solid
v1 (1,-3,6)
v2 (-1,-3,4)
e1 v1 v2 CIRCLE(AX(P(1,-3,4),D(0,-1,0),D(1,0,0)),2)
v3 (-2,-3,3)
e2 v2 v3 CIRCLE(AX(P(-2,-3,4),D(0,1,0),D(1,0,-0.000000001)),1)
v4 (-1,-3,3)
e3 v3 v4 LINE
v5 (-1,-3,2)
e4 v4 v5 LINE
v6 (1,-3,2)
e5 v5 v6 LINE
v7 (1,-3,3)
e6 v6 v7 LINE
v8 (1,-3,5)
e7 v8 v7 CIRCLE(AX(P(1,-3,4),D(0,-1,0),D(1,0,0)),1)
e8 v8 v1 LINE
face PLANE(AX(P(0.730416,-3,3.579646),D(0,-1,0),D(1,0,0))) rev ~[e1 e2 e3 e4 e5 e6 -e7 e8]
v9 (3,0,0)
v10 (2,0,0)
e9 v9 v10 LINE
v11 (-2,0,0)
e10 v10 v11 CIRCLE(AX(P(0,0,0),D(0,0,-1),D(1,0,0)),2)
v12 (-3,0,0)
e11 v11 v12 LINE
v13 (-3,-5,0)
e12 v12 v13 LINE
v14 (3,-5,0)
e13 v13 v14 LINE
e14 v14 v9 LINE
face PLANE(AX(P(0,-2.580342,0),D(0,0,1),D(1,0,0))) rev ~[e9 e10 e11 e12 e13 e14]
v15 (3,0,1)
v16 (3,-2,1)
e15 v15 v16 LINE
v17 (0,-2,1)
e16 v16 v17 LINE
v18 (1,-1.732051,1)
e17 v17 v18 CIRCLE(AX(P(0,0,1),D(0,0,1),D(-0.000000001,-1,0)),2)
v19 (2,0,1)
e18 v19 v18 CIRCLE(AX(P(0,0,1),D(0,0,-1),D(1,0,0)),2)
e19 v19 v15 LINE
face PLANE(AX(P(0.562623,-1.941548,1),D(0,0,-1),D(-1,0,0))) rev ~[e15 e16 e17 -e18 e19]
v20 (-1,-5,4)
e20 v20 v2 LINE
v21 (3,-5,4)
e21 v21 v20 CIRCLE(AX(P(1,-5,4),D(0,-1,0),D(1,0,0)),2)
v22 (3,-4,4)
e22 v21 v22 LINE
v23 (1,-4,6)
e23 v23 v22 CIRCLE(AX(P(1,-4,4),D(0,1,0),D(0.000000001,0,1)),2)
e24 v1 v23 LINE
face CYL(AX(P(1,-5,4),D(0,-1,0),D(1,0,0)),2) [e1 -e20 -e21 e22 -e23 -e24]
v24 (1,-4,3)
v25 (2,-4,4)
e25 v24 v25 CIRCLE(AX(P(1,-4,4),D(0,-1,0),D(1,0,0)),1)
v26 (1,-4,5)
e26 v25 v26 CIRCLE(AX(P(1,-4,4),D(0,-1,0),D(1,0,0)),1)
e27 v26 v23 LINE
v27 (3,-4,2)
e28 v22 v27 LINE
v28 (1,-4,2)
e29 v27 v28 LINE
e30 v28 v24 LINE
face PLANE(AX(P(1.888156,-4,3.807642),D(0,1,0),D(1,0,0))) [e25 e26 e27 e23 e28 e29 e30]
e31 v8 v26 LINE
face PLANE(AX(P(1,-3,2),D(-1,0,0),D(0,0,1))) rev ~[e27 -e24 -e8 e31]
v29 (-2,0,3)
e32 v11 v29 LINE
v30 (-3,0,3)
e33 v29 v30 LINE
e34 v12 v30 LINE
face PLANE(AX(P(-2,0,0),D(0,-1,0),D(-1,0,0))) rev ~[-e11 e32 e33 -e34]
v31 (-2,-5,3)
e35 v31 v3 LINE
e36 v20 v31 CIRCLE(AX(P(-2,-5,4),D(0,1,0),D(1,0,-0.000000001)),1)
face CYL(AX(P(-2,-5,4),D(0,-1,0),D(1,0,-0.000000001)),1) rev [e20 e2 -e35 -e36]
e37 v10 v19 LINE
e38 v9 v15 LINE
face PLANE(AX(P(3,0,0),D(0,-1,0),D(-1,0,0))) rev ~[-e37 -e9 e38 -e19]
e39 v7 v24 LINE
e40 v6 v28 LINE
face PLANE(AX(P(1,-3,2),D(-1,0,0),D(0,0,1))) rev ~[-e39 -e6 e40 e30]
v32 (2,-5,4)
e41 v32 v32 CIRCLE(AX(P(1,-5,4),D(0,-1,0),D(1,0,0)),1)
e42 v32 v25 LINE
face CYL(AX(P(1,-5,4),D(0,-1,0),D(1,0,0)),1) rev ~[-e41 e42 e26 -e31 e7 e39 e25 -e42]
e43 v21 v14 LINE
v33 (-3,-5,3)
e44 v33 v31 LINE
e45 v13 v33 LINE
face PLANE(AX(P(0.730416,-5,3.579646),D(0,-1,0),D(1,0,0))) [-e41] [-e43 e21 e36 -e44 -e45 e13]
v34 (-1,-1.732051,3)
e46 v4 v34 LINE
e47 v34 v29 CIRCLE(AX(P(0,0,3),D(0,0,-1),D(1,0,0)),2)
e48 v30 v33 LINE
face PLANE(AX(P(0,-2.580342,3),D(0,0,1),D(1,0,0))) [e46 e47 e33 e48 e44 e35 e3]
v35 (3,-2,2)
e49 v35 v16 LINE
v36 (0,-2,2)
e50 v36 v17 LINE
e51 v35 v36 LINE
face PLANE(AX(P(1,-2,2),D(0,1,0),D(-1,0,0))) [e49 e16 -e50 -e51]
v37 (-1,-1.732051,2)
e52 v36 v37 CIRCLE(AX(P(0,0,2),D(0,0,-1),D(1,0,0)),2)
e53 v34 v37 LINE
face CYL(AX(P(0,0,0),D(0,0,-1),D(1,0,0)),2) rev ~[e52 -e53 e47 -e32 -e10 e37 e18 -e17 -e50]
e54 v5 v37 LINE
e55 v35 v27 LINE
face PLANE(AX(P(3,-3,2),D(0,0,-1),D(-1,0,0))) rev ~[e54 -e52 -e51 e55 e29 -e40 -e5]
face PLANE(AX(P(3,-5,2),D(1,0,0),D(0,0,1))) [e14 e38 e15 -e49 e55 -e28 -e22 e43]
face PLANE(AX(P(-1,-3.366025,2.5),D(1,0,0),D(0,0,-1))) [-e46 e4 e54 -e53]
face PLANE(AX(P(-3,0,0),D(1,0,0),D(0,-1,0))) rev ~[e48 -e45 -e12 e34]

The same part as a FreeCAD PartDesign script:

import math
import FreeCAD as App
import Part
import Sketcher
from FreeCAD import Vector
Q = App.Units.Quantity


def add_polygon(sketch, points):
    """Adds a closed chain of lines whose ends are joined by coincident constraints."""
    first, n = sketch.GeometryCount, len(points)
    for a, b in zip(points, points[1:] + points[:1]):
        sketch.addGeometry(Part.LineSegment(App.Vector(*a, 0), App.Vector(*b, 0)), False)
    for i in range(n):
        sketch.addConstraint(Sketcher.Constraint("Coincident", first + i, 2, first + (i + 1) % n, 1))

doc = App.newDocument("Part")
body = doc.addObject("PartDesign::Body", "Body")

# Sketch on XY plane
sketch1 = body.newObject("Sketcher::SketchObject", "Sketch")
sketch1.AttachmentSupport = (doc.getObject("XY_Plane"), [""])
sketch1.MapMode = "FlatFace"
sketch1.addGeometry(Part.LineSegment(Vector(-2, 0, 0), Vector(-3, 0, 0)), False)
sketch1.addGeometry(Part.LineSegment(Vector(-3, 0, 0), Vector(-3, -5, 0)), False)
sketch1.addGeometry(Part.LineSegment(Vector(-3, -5, 0), Vector(3, -5, 0)), False)
sketch1.addGeometry(Part.LineSegment(Vector(3, -5, 0), Vector(3, 0, 0)), False)
sketch1.addGeometry(Part.LineSegment(Vector(3, 0, 0), Vector(2, 0, 0)), False)
sketch1.addGeometry(Part.ArcOfCircle(Part.Circle(Vector(0, 0, 0), Vector(0, 0, 1), 2), math.radians(180), math.radians(360)), False)
sketch1.addConstraint(Sketcher.Constraint("Coincident", 0, 2, 1, 1))
sketch1.addConstraint(Sketcher.Constraint("Coincident", 1, 2, 2, 1))
sketch1.addConstraint(Sketcher.Constraint("Coincident", 2, 2, 3, 1))
sketch1.addConstraint(Sketcher.Constraint("Coincident", 3, 2, 4, 1))
sketch1.addConstraint(Sketcher.Constraint("Coincident", 4, 2, 5, 2))
sketch1.addConstraint(Sketcher.Constraint("Coincident", 5, 1, 0, 1))
sketch1.addConstraint(Sketcher.Constraint("Horizontal", 0))
sketch1.addConstraint(Sketcher.Constraint("Vertical", 1))
sketch1.addConstraint(Sketcher.Constraint("Horizontal", 2))
sketch1.addConstraint(Sketcher.Constraint("Vertical", 3))
sketch1.addConstraint(Sketcher.Constraint("Horizontal", 4))
sketch1.addConstraint(Sketcher.Constraint("Coincident", 5, 3, -1, 1))
sketch1.addConstraint(Sketcher.Constraint("Symmetric", 0, 2, 3, 2, -1, 1))
sketch1.addConstraint(Sketcher.Constraint("PointOnObject", 0, 2, -1))
sketch1.addConstraint(Sketcher.Constraint("Radius", 5, Q("2 mm")))
sketch1.addConstraint(Sketcher.Constraint("DistanceX", 0, 2, 0, 1, Q("1 mm")))
sketch1.addConstraint(Sketcher.Constraint("DistanceY", 1, 2, 1, 1, Q("5 mm")))
pad1 = body.newObject("PartDesign::Pad", "Pad")
pad1.Profile = sketch1
pad1.Length = 3

# Sketch on XZ plane
sketch2 = body.newObject("Sketcher::SketchObject", "Sketch001")
sketch2.AttachmentSupport = (doc.getObject("XZ_Plane"), [""])
sketch2.MapMode = "FlatFace"
add_polygon(sketch2, [(1, 1), (1, 3), (3, 3), (3, 1)])  # lines 0-3
sketch2.addConstraint(Sketcher.Constraint("Vertical", 0))
sketch2.addConstraint(Sketcher.Constraint("Horizontal", 1))
sketch2.addConstraint(Sketcher.Constraint("Vertical", 2))
sketch2.addConstraint(Sketcher.Constraint("Horizontal", 3))
sketch2.addConstraint(Sketcher.Constraint("Equal", 3, 0))
sketch2.addConstraint(Sketcher.Constraint("DistanceX", 1, 1, 1, 2, Q("2 mm")))
sketch2.addConstraint(Sketcher.Constraint("DistanceX", -1, 1, 0, 2, Q("1 mm")))
sketch2.addConstraint(Sketcher.Constraint("DistanceY", -1, 1, 0, 2, Q("3 mm")))
pocket1 = body.newObject("PartDesign::Pocket", "Pocket")
pocket1.Profile = sketch2
pocket1.Length = 2
pocket1.Reversed = True

# Sketch on YZ plane
sketch3 = body.newObject("Sketcher::SketchObject", "Sketch002")
sketch3.AttachmentSupport = (doc.getObject("YZ_Plane"), [""])
sketch3.MapMode = "FlatFace"
sketch3.AttachmentOffset = App.Placement(Vector(0, 0, 3), App.Rotation())
add_polygon(sketch3, [(-1.732051, 3), (-5, 3), (-5, 2), (-1.732051, 2)])  # lines 0-3
sketch3.addConstraint(Sketcher.Constraint("Horizontal", 0))
sketch3.addConstraint(Sketcher.Constraint("Vertical", 1))
sketch3.addConstraint(Sketcher.Constraint("Horizontal", 2))
sketch3.addConstraint(Sketcher.Constraint("Vertical", 3))
sketch3.addConstraint(Sketcher.Constraint("DistanceY", 1, 2, 1, 1, Q("1 mm")))
sketch3.addConstraint(Sketcher.Constraint("DistanceX", 0, 2, -1, 1, Q("5 mm")))
sketch3.addConstraint(Sketcher.Constraint("DistanceY", -1, 1, 0, 2, Q("3 mm")))
sketch3.addConstraint(Sketcher.Constraint("DistanceX", 0, 2, 0, 1, Q("3.267949 mm")))
pocket2 = body.newObject("PartDesign::Pocket", "Pocket001")
pocket2.Profile = sketch3
pocket2.Length = 4

# Sketch on XY plane
sketch4 = body.newObject("Sketcher::SketchObject", "Sketch003")
sketch4.AttachmentSupport = (doc.getObject("XY_Plane"), [""])
sketch4.MapMode = "FlatFace"
sketch4.AttachmentOffset = App.Placement(Vector(0, 0, 2), App.Rotation())
sketch4.addGeometry(Part.LineSegment(Vector(0, -2, 0), Vector(1, -2, 0)), False)
sketch4.addGeometry(Part.LineSegment(Vector(1, -2, 0), Vector(1, -1.732051, 0)), False)
sketch4.addGeometry(Part.ArcOfCircle(Part.Circle(Vector(0, 0, 0), Vector(0, 0, 1), 2), math.radians(-90), math.radians(-60)), False)
sketch4.addConstraint(Sketcher.Constraint("Coincident", 0, 2, 1, 1))
sketch4.addConstraint(Sketcher.Constraint("Coincident", 1, 2, 2, 2))
sketch4.addConstraint(Sketcher.Constraint("Tangent", 2, 1, 0, 1))
sketch4.addConstraint(Sketcher.Constraint("Horizontal", 0))
sketch4.addConstraint(Sketcher.Constraint("Vertical", 1))
sketch4.addConstraint(Sketcher.Constraint("Coincident", 2, 3, -1, 1))
sketch4.addConstraint(Sketcher.Constraint("Radius", 2, Q("2 mm")))
sketch4.addConstraint(Sketcher.Constraint("DistanceX", 0, 1, 0, 2, Q("1 mm")))
pocket3 = body.newObject("PartDesign::Pocket", "Pocket002")
pocket3.Profile = sketch4
pocket3.Length = 1

# Sketch on XZ plane
sketch5 = body.newObject("Sketcher::SketchObject", "Sketch004")
sketch5.AttachmentSupport = (doc.getObject("XZ_Plane"), [""])
sketch5.MapMode = "FlatFace"
sketch5.AttachmentOffset = App.Placement(Vector(0, 0, 5), App.Rotation())
sketch5.addGeometry(Part.LineSegment(Vector(3, 2, 0), Vector(3, 4, 0)), False)
sketch5.addGeometry(Part.ArcOfCircle(Part.Circle(Vector(1, 4, 0), Vector(0, 0, 1), 2), math.radians(0), math.radians(180)), False)
sketch5.addGeometry(Part.ArcOfCircle(Part.Circle(Vector(-2, 4, 0), Vector(0, 0, 1), 1), math.radians(-90), math.radians(0)), False)
sketch5.addGeometry(Part.LineSegment(Vector(-2, 3, 0), Vector(-1, 3, 0)), False)
sketch5.addGeometry(Part.LineSegment(Vector(-1, 3, 0), Vector(-1, 2, 0)), False)
sketch5.addGeometry(Part.LineSegment(Vector(-1, 2, 0), Vector(3, 2, 0)), False)
sketch5.addGeometry(Part.Circle(Vector(1, 4, 0), Vector(0, 0, 1), 1), False)
sketch5.addConstraint(Sketcher.Constraint("Tangent", 0, 2, 1, 1))
sketch5.addConstraint(Sketcher.Constraint("Tangent", 1, 2, 2, 2))
sketch5.addConstraint(Sketcher.Constraint("Tangent", 2, 1, 3, 1))
sketch5.addConstraint(Sketcher.Constraint("Coincident", 3, 2, 4, 1))
sketch5.addConstraint(Sketcher.Constraint("Coincident", 4, 2, 5, 1))
sketch5.addConstraint(Sketcher.Constraint("Coincident", 5, 2, 0, 1))
sketch5.addConstraint(Sketcher.Constraint("Vertical", 0))
sketch5.addConstraint(Sketcher.Constraint("Horizontal", 3))
sketch5.addConstraint(Sketcher.Constraint("Vertical", 4))
sketch5.addConstraint(Sketcher.Constraint("Horizontal", 5))
sketch5.addConstraint(Sketcher.Constraint("Coincident", 6, 3, 1, 3))
sketch5.addConstraint(Sketcher.Constraint("Equal", 2, 6))
sketch5.addConstraint(Sketcher.Constraint("Horizontal", 1, 3, 2, 3))
sketch5.addConstraint(Sketcher.Constraint("Vertical", 1, 2, 3, 2))
sketch5.addConstraint(Sketcher.Constraint("Equal", 3, 4))
sketch5.addConstraint(Sketcher.Constraint("Diameter", 6, Q("2 mm")))
sketch5.addConstraint(Sketcher.Constraint("Radius", 1, Q("2 mm")))
sketch5.addConstraint(Sketcher.Constraint("DistanceX", -1, 1, 1, 3, Q("1 mm")))
sketch5.addConstraint(Sketcher.Constraint("DistanceY", -1, 1, 1, 3, Q("4 mm")))
pad2 = body.newObject("PartDesign::Pad", "Pad001")
pad2.Profile = sketch5
pad2.Length = 2
pad2.Reversed = True

# Sketch on XZ plane
sketch6 = body.newObject("Sketcher::SketchObject", "Sketch005")
sketch6.AttachmentSupport = (doc.getObject("XZ_Plane"), [""])
sketch6.MapMode = "FlatFace"
sketch6.AttachmentOffset = App.Placement(Vector(0, 0, 3), App.Rotation())
sketch6.addGeometry(Part.LineSegment(Vector(1, 2, 0), Vector(1, 6, 0)), False)
sketch6.addGeometry(Part.ArcOfCircle(Part.Circle(Vector(1, 4, 0), Vector(0, 0, 1), 2), math.radians(0), math.radians(90)), False)
sketch6.addGeometry(Part.LineSegment(Vector(3, 4, 0), Vector(3, 2, 0)), False)
sketch6.addGeometry(Part.LineSegment(Vector(3, 2, 0), Vector(1, 2, 0)), False)
sketch6.addConstraint(Sketcher.Constraint("Coincident", 0, 2, 1, 2))
sketch6.addConstraint(Sketcher.Constraint("Tangent", 1, 1, 2, 1))
sketch6.addConstraint(Sketcher.Constraint("Coincident", 2, 2, 3, 1))
sketch6.addConstraint(Sketcher.Constraint("Coincident", 3, 2, 0, 1))
sketch6.addConstraint(Sketcher.Constraint("Vertical", 0))
sketch6.addConstraint(Sketcher.Constraint("Vertical", 2))
sketch6.addConstraint(Sketcher.Constraint("Horizontal", 3))
sketch6.addConstraint(Sketcher.Constraint("Vertical", 1, 3, 0, 2))
sketch6.addConstraint(Sketcher.Constraint("Equal", 3, 2))
sketch6.addConstraint(Sketcher.Constraint("Radius", 1, Q("2 mm")))
sketch6.addConstraint(Sketcher.Constraint("DistanceX", -1, 1, 1, 3, Q("1 mm")))
sketch6.addConstraint(Sketcher.Constraint("DistanceY", -1, 1, 1, 3, Q("4 mm")))
pocket4 = body.newObject("PartDesign::Pocket", "Pocket003")
pocket4.Profile = sketch6
pocket4.Length = 1
pocket4.Reversed = True

doc.recompute()
